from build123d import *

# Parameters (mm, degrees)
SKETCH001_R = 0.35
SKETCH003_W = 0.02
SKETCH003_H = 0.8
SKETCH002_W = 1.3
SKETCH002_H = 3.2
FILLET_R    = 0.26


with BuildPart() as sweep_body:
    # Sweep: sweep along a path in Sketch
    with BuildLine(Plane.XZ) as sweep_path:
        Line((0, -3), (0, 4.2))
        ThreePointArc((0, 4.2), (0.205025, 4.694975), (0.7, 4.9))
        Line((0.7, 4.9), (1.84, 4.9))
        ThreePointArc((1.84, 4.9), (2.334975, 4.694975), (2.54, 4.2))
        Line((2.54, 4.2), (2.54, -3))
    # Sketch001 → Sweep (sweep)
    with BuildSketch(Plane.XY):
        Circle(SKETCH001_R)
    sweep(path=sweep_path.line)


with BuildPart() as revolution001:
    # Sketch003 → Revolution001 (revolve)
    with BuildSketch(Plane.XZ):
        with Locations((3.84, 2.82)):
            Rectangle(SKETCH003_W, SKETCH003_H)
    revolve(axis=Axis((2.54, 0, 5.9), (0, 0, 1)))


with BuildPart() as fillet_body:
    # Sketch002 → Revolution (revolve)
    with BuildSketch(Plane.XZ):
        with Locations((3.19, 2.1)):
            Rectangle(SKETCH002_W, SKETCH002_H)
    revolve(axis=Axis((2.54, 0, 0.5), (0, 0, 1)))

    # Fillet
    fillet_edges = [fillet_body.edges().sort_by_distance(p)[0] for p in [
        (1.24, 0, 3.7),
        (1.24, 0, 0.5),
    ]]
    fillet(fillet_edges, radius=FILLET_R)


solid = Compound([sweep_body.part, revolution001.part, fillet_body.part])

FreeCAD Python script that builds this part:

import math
import FreeCAD as App
import Part
import Sketcher
Q = App.Units.Quantity


def edges_at(feature, points):
    """Names of the edges that pass closest to the given points."""
    edges = feature.Shape.Edges
    near = lambda p: min(range(len(edges)), key=lambda i: edges[i].distToShape(Part.Vertex(*p))[0])
    return sorted({f"Edge{near(p) + 1}" for p in points})

doc = App.newDocument("Part")
body = doc.addObject("PartDesign::Body", "Body")

sketch1 = body.newObject("Sketcher::SketchObject", "Sketch")
sketch1.AttachmentSupport = (doc.getObject("XY_Plane"), [""])
sketch1.MapMode = "FlatFace"
sketch1.addGeometry(Part.Circle(App.Vector(0, 0, 0), App.Vector(0, 0, 1), 0.35), False)
sketch1.addConstraint(Sketcher.Constraint("Coincident", 0, 3, -1, 1))
sketch1.addConstraint(Sketcher.Constraint("Diameter", 0, Q("0.7 mm")))

sketch2 = body.newObject("Sketcher::SketchObject", "Sketch001")
sketch2.AttachmentSupport = (doc.getObject("XZ_Plane"), [""])
sketch2.MapMode = "FlatFace"
sketch2.addGeometry(Part.LineSegment(App.Vector(0, -3, 0), App.Vector(0, 4.2, 0)), False)
sketch2.addGeometry(Part.ArcOfCircle(Part.Circle(App.Vector(0.699999, 4.200001, 0), App.Vector(0, 0, 1), 0.699999), math.radians(89.999929), math.radians(180.000071)), False)
sketch2.addGeometry(Part.LineSegment(App.Vector(0.7, 4.9, 0), App.Vector(1.84, 4.9, 0)), False)
sketch2.addGeometry(Part.ArcOfCircle(Part.Circle(App.Vector(1.840001, 4.200001, 0), App.Vector(0, 0, 1), 0.699999), math.radians(-0.000071), math.radians(90.000071)), False)
sketch2.addGeometry(Part.LineSegment(App.Vector(2.54, 4.2, 0), App.Vector(2.54, -3, 0)), False)
sketch2.addConstraint(Sketcher.Constraint("Tangent", 0, 2, 1, 2))
sketch2.addConstraint(Sketcher.Constraint("Tangent", 1, 1, 2, 1))
sketch2.addConstraint(Sketcher.Constraint("Tangent", 2, 2, 3, 2))
sketch2.addConstraint(Sketcher.Constraint("Tangent", 3, 1, 4, 1))
sketch2.addConstraint(Sketcher.Constraint("Vertical", 0))
sketch2.addConstraint(Sketcher.Constraint("Horizontal", 2))
sketch2.addConstraint(Sketcher.Constraint("Vertical", 4))
sketch2.addConstraint(Sketcher.Constraint("Equal", 1, 3))
sketch2.addConstraint(Sketcher.Constraint("PointOnObject", 0, 1, -2))
sketch2.addConstraint(Sketcher.Constraint("Horizontal", 0, 1, 4, 2))
sketch2.addConstraint(Sketcher.Constraint("Radius", 1, Q("0.699999 mm")))
sketch2.addConstraint(Sketcher.Constraint("DistanceY", 0, 1, 0, 2, Q("7.2 mm")))
sketch2.addConstraint(Sketcher.Constraint("DistanceY", 0, 1, -1, 1, Q("3 mm")))
sketch2.addConstraint(Sketcher.Constraint("DistanceX", 2, 1, 2, 2, Q("1.14 mm")))
doc.recompute()

additivepipe = body.newObject("PartDesign::AdditivePipe", "AdditivePipe")
additivepipe.Profile = sketch1
additivepipe.Spine = (sketch2, ["Edge1", "Edge2", "Edge3", "Edge4", "Edge5"])
body2 = doc.addObject("PartDesign::Body", "Body001")

sketch3 = body2.newObject("Sketcher::SketchObject", "Sketch002")
sketch3.AttachmentSupport = (doc.getObject("XZ_Plane001"), [""])
sketch3.MapMode = "FlatFace"
sketch3.addGeometry(Part.LineSegment(App.Vector(3.83, 3.22, 0), App.Vector(3.83, 2.42, 0)), False)
sketch3.addGeometry(Part.LineSegment(App.Vector(3.83, 2.42, 0), App.Vector(3.85, 2.42, 0)), False)
sketch3.addGeometry(Part.LineSegment(App.Vector(3.85, 2.42, 0), App.Vector(3.85, 3.22, 0)), False)
sketch3.addGeometry(Part.LineSegment(App.Vector(3.85, 3.22, 0), App.Vector(3.83, 3.22, 0)), False)
sketch3.addGeometry(Part.LineSegment(App.Vector(2.54, 2.42, 0), App.Vector(2.54, 3.22, 0)), True)
sketch3.addConstraint(Sketcher.Constraint("Coincident", 0, 2, 1, 1))
sketch3.addConstraint(Sketcher.Constraint("Coincident", 1, 2, 2, 1))
sketch3.addConstraint(Sketcher.Constraint("Coincident", 2, 2, 3, 1))
sketch3.addConstraint(Sketcher.Constraint("Coincident", 3, 2, 0, 1))
sketch3.addConstraint(Sketcher.Constraint("Vertical", 0))
sketch3.addConstraint(Sketcher.Constraint("Horizontal", 1))
sketch3.addConstraint(Sketcher.Constraint("Vertical", 2))
sketch3.addConstraint(Sketcher.Constraint("Horizontal", 3))
sketch3.addConstraint(Sketcher.Constraint("Vertical", 4))
sketch3.addConstraint(Sketcher.Constraint("Horizontal", 1, 2, 4, 1))
sketch3.addConstraint(Sketcher.Constraint("Horizontal", 3, 2, 4, 2))
sketch3.addConstraint(Sketcher.Constraint("DistanceY", 0, 2, 0, 1, Q("0.8 mm")))
sketch3.addConstraint(Sketcher.Constraint("DistanceX", 1, 1, 1, 2, Q("0.02 mm")))
sketch3.addConstraint(Sketcher.Constraint("DistanceX", -1, 1, 0, 2, Q("3.83 mm")))
sketch3.addConstraint(Sketcher.Constraint("DistanceY", -1, 1, 0, 2, Q("2.42 mm")))
sketch3.addConstraint(Sketcher.Constraint("DistanceX", -1, 1, 4, 1, Q("2.54 mm")))
revolution = body2.newObject("PartDesign::Revolution", "Revolution")
revolution.Profile = sketch3
revolution.ReferenceAxis = (sketch3, ["Axis0"])
revolution.Angle = 360
body3 = doc.addObject("PartDesign::Body", "Body002")

sketch4 = body3.newObject("Sketcher::SketchObject", "Sketch003")
sketch4.AttachmentSupport = (doc.getObject("XZ_Plane002"), [""])
sketch4.MapMode = "FlatFace"
sketch4.addGeometry(Part.LineSegment(App.Vector(2.54, 3.7, 0), App.Vector(2.54, 0.5, 0)), False)
sketch4.addGeometry(Part.LineSegment(App.Vector(2.54, 0.5, 0), App.Vector(3.84, 0.5, 0)), False)
sketch4.addGeometry(Part.LineSegment(App.Vector(3.84, 0.5, 0), App.Vector(3.84, 3.7, 0)), False)
sketch4.addGeometry(Part.LineSegment(App.Vector(3.84, 3.7, 0), App.Vector(2.54, 3.7, 0)), False)
sketch4.addGeometry(Part.LineSegment(App.Vector(2.54, 0.5, 0), App.Vector(2.54, 3.7, 0)), True)
sketch4.addConstraint(Sketcher.Constraint("Coincident", 0, 2, 1, 1))
sketch4.addConstraint(Sketcher.Constraint("Coincident", 1, 2, 2, 1))
sketch4.addConstraint(Sketcher.Constraint("Coincident", 2, 2, 3, 1))
sketch4.addConstraint(Sketcher.Constraint("Coincident", 3, 2, 0, 1))
sketch4.addConstraint(Sketcher.Constraint("Vertical", 0))
sketch4.addConstraint(Sketcher.Constraint("Horizontal", 1))
sketch4.addConstraint(Sketcher.Constraint("Vertical", 2))
sketch4.addConstraint(Sketcher.Constraint("Horizontal", 3))
sketch4.addConstraint(Sketcher.Constraint("Vertical", 4))
sketch4.addConstraint(Sketcher.Constraint("Coincident", 4, 1, 0, 2))
sketch4.addConstraint(Sketcher.Constraint("Horizontal", 2, 2, 4, 2))
sketch4.addConstraint(Sketcher.Constraint("DistanceX", 1, 1, 1, 2, Q("1.3 mm")))
sketch4.addConstraint(Sketcher.Constraint("DistanceY", 0, 2, 0, 1, Q("3.2 mm")))
sketch4.addConstraint(Sketcher.Constraint("DistanceY", -1, 1, 0, 2, Q("0.5 mm")))
sketch4.addConstraint(Sketcher.Constraint("DistanceX", -1, 1, 0, 2, Q("2.54 mm")))
revolution2 = body3.newObject("PartDesign::Revolution", "Revolution001")
revolution2.Profile = sketch4
revolution2.ReferenceAxis = (sketch4, ["Axis0"])
revolution2.Angle = 360
doc.recompute()

fillet = body3.newObject("PartDesign::Fillet", "Fillet")
fillet.Base = (revolution2, edges_at(revolution2, [(1.24, 0, 3.7), (1.24, 0, 0.5)]))
fillet.Radius = 0.26

doc.recompute()
